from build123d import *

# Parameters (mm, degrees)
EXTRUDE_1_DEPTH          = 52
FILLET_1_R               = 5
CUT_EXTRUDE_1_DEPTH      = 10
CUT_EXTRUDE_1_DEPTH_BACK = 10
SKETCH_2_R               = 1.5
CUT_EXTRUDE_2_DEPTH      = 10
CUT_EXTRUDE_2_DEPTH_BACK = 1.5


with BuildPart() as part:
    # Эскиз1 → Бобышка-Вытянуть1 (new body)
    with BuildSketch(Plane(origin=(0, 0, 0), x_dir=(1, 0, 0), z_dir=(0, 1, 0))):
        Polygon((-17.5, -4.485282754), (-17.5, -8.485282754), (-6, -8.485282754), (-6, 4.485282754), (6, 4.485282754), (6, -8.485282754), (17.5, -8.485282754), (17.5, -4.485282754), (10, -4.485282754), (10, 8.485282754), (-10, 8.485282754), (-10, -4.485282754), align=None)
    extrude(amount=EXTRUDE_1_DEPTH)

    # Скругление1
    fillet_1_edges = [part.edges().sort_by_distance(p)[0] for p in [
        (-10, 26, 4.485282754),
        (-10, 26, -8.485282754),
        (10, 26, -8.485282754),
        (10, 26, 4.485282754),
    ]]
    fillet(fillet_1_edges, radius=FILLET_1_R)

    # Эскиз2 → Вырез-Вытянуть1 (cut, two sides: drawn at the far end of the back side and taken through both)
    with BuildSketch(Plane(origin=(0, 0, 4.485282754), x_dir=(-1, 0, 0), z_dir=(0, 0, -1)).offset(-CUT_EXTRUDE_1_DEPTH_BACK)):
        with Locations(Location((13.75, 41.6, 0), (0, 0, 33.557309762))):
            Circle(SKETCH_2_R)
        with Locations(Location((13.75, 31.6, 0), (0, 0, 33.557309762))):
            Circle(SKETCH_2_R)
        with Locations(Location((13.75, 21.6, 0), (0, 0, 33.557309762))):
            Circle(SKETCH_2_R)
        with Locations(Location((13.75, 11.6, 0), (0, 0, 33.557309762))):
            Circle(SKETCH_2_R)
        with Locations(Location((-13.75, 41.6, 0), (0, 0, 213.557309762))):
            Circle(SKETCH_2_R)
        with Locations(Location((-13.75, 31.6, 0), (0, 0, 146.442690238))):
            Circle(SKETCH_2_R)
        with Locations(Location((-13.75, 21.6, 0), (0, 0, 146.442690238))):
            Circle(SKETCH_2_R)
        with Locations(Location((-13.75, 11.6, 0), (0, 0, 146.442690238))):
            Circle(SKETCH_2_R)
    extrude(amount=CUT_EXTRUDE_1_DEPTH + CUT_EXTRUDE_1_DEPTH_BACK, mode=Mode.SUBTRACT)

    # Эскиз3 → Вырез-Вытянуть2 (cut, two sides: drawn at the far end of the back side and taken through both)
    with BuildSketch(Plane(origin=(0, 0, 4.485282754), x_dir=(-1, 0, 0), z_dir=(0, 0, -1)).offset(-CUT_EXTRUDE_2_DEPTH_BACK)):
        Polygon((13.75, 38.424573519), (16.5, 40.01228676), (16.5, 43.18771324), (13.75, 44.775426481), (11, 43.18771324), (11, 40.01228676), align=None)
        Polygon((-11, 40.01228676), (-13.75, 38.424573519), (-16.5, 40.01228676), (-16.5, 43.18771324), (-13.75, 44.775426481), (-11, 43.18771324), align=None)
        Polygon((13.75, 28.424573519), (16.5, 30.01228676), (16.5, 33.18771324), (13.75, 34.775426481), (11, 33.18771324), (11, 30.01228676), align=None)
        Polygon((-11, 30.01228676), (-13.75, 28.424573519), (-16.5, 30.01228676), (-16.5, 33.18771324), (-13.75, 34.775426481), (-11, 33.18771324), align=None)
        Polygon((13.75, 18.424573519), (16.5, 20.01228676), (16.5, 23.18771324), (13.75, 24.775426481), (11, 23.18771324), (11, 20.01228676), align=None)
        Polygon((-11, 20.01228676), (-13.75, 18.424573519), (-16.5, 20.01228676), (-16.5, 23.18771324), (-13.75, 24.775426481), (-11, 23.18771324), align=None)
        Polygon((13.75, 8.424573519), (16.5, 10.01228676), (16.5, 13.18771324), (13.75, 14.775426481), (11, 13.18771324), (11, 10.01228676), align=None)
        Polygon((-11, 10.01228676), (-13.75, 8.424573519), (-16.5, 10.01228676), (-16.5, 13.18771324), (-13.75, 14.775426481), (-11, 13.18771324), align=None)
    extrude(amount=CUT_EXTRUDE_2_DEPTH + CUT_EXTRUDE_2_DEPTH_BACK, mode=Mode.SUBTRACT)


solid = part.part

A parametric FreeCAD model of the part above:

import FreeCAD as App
import Part
import Sketcher

V = App.Vector
Q = App.Units.Quantity


def edges_at(feature, points):
    """Names of the edges that pass closest to the given points."""
    edges = feature.Shape.Edges
    near = lambda p: min(range(len(edges)), key=lambda i: edges[i].distToShape(Part.Vertex(*p))[0])
    return sorted({f"Edge{near(p) + 1}" for p in points})


def add_polygon(sketch, points):
    """Adds a closed chain of lines whose ends are joined by coincident constraints."""
    first, n = sketch.GeometryCount, len(points)
    for a, b in zip(points, points[1:] + points[:1]):
        sketch.addGeometry(Part.LineSegment(App.Vector(*a, 0), App.Vector(*b, 0)), False)
    for i in range(n):
        sketch.addConstraint(Sketcher.Constraint("Coincident", first + i, 2, first + (i + 1) % n, 1))

doc = App.newDocument("Part")
body = doc.addObject("PartDesign::Body", "Body")

# Sketch on XZ plane
sketch1 = body.newObject("Sketcher::SketchObject", "Sketch")
sketch1.AttachmentSupport = (doc.getObject("XZ_Plane"), [""])
sketch1.MapMode = "FlatFace"
add_polygon(sketch1, [(-17.5, 4.5), (-17.5, 8.5), (-6, 8.5), (-6, -4.5), (6, -4.5), (6, 8.5), (17.5, 8.5), (17.5, 4.5), (10, 4.5), (10, -8.5), (-10, -8.5), (-10, 4.5)])  # lines 0-11
sketch1.addConstraint(Sketcher.Constraint("Vertical", 0))
sketch1.addConstraint(Sketcher.Constraint("Horizontal", 1))
sketch1.addConstraint(Sketcher.Constraint("Vertical", 2))
sketch1.addConstraint(Sketcher.Constraint("Horizontal", 3))
sketch1.addConstraint(Sketcher.Constraint("Vertical", 4))
sketch1.addConstraint(Sketcher.Constraint("Horizontal", 5))
sketch1.addConstraint(Sketcher.Constraint("Vertical", 6))
sketch1.addConstraint(Sketcher.Constraint("Horizontal", 7))
sketch1.addConstraint(Sketcher.Constraint("Vertical", 8))
sketch1.addConstraint(Sketcher.Constraint("Horizontal", 9))
sketch1.addConstraint(Sketcher.Constraint("Vertical", 10))
sketch1.addConstraint(Sketcher.Constraint("Horizontal", 11))
sketch1.addConstraint(Sketcher.Constraint("Symmetric", 1, 2, 4, 2, -2))
sketch1.addConstraint(Sketcher.Constraint("Symmetric", 7, 2, 10, 2, -2))
sketch1.addConstraint(Sketcher.Constraint("Equal", 1, 5))
sketch1.addConstraint(Sketcher.Constraint("Equal", 4, 8))
sketch1.addConstraint(Sketcher.Constraint("DistanceX", 3, 1, 3, 2, 12.0))
sketch1.addConstraint(Sketcher.Constraint("DistanceX", 9, 2, 9, 1, 20.0))
sketch1.addConstraint(Sketcher.Constraint("DistanceY", 0, 1, 0, 2, 4.0))
sketch1.addConstraint(Sketcher.Constraint("DistanceX", 1, 1, 1, 2, 11.5))
sketch1.addConstraint(Sketcher.Constraint("DistanceY", 2, 2, 2, 1, 12.970566))
sketch1.addConstraint(Sketcher.Constraint("DistanceY", -1, 1, 0, 2, 8.485283))
pad1 = body.newObject("PartDesign::Pad", "Pad")
pad1.Profile = sketch1
pad1.Length = 52
pad1.Reversed = True
doc.recompute()

fillet = body.newObject("PartDesign::Fillet", "Fillet")
fillet.Base = (pad1, edges_at(pad1, [
    (-10, 26, 4.485),
    (-10, 26, -8.485),
    (10, 26, -8.485),
    (10, 26, 4.485),
]))
fillet.Radius = 5

# Sketch on XY plane
sketch2 = body.newObject("Sketcher::SketchObject", "Sketch001")
sketch2.AttachmentSupport = (doc.getObject("XY_Plane"), [""])
sketch2.MapMode = "FlatFace"
sketch2.AttachmentOffset = App.Placement(V(0, 0, 4.485283), App.Rotation())
sketch2.addGeometry(Part.Circle(V(-13.8, 41.6, 0), V(0, 0, 1), 1.5), False)
sketch2.addGeometry(Part.Circle(V(-13.8, 31.6, 0), V(0, 0, 1), 1.5), False)
sketch2.addGeometry(Part.Circle(V(-13.8, 21.6, 0), V(0, 0, 1), 1.5), False)
sketch2.addGeometry(Part.Circle(V(-13.8, 11.6, 0), V(0, 0, 1), 1.5), False)
sketch2.addGeometry(Part.Circle(V(13.8, 41.6, 0), V(0, 0, 1), 1.5), False)
sketch2.addGeometry(Part.Circle(V(13.8, 31.6, 0), V(0, 0, 1), 1.5), False)
sketch2.addGeometry(Part.Circle(V(13.8, 21.6, 0), V(0, 0, 1), 1.5), False)
sketch2.addGeometry(Part.Circle(V(13.8, 11.6, 0), V(0, 0, 1), 1.5), False)
sketch2.addConstraint(Sketcher.Constraint("Equal", 0, 1))
sketch2.addConstraint(Sketcher.Constraint("Equal", 1, 2))
sketch2.addConstraint(Sketcher.Constraint("Equal", 2, 3))
sketch2.addConstraint(Sketcher.Constraint("Equal", 3, 4))
sketch2.addConstraint(Sketcher.Constraint("Equal", 4, 5))
sketch2.addConstraint(Sketcher.Constraint("Equal", 5, 6))
sketch2.addConstraint(Sketcher.Constraint("Equal", 6, 7))
sketch2.addConstraint(Sketcher.Constraint("Symmetric", 0, 3, 4, 3, -2))
sketch2.addConstraint(Sketcher.Constraint("Symmetric", 1, 3, 5, 3, -2))
sketch2.addConstraint(Sketcher.Constraint("Symmetric", 2, 3, 6, 3, -2))
sketch2.addConstraint(Sketcher.Constraint("Symmetric", 3, 3, 7, 3, -2))
sketch2.addConstraint(Sketcher.Constraint("Vertical", 0, 3, 1, 3))
sketch2.addConstraint(Sketcher.Constraint("Vertical", 1, 3, 2, 3))
sketch2.addConstraint(Sketcher.Constraint("Vertical", 2, 3, 3, 3))
sketch2.addConstraint(Sketcher.Constraint("Diameter", 0, 3.0))
sketch2.addConstraint(Sketcher.Constraint("DistanceY", 1, 3, 0, 3, 10.0))
sketch2.addConstraint(Sketcher.Constraint("DistanceY", 2, 3, 1, 3, 10.0))
sketch2.addConstraint(Sketcher.Constraint("DistanceY", 3, 3, 2, 3, 10.0))
sketch2.addConstraint(Sketcher.Constraint("DistanceY", -1, 1, 0, 3, 41.6))
sketch2.addConstraint(Sketcher.Constraint("DistanceX", 0, 3, 4, 3, 27.5))
pocket1 = body.newObject("PartDesign::Pocket", "Pocket")
pocket1.Profile = sketch2
pocket1.Type = "ThroughAll"
pocket1.Midplane = True

# Sketch on XY plane
sketch3 = body.newObject("Sketcher::SketchObject", "Sketch002")
sketch3.AttachmentSupport = (doc.getObject("XY_Plane"), [""])
sketch3.MapMode = "FlatFace"
sketch3.AttachmentOffset = App.Placement(V(0, 0, 4.485283), App.Rotation())
add_polygon(sketch3, [(-13.8, 38.4), (-16.5, 40), (-16.5, 43.2), (-13.8, 44.8), (-11, 43.2), (-11, 40)])  # lines 0-5
add_polygon(sketch3, [(13.8, 38.4), (11, 40), (11, 43.2), (13.8, 44.8), (16.5, 43.2), (16.5, 40)])  # lines 6-11
add_polygon(sketch3, [(-13.8, 28.4), (-16.5, 30), (-16.5, 33.2), (-13.8, 34.8), (-11, 33.2), (-11, 30)])  # lines 12-17
add_polygon(sketch3, [(13.8, 28.4), (11, 30), (11, 33.2), (13.8, 34.8), (16.5, 33.2), (16.5, 30)])  # lines 18-23
add_polygon(sketch3, [(-13.8, 18.4), (-16.5, 20), (-16.5, 23.2), (-13.8, 24.8), (-11, 23.2), (-11, 20)])  # lines 24-29
add_polygon(sketch3, [(13.8, 18.4), (11, 20), (11, 23.2), (13.8, 24.8), (16.5, 23.2), (16.5, 20)])  # lines 30-35
add_polygon(sketch3, [(-13.8, 8.4), (-16.5, 10), (-16.5, 13.2), (-13.8, 14.8), (-11, 13.2), (-11, 10)])  # lines 36-41
add_polygon(sketch3, [(13.8, 8.4), (11, 10), (11, 13.2), (13.8, 14.8), (16.5, 13.2), (16.5, 10)])  # lines 42-47
sketch3.addConstraint(Sketcher.Constraint("Vertical", 1))
sketch3.addConstraint(Sketcher.Constraint("Vertical", 4))
sketch3.addConstraint(Sketcher.Constraint("Vertical", 7))
sketch3.addConstraint(Sketcher.Constraint("Vertical", 10))
sketch3.addConstraint(Sketcher.Constraint("Vertical", 13))
sketch3.addConstraint(Sketcher.Constraint("Vertical", 16))
sketch3.addConstraint(Sketcher.Constraint("Vertical", 19))
sketch3.addConstraint(Sketcher.Constraint("Vertical", 22))
sketch3.addConstraint(Sketcher.Constraint("Vertical", 25))
sketch3.addConstraint(Sketcher.Constraint("Vertical", 28))
sketch3.addConstraint(Sketcher.Constraint("Vertical", 31))
sketch3.addConstraint(Sketcher.Constraint("Vertical", 34))
sketch3.addConstraint(Sketcher.Constraint("Vertical", 37))
sketch3.addConstraint(Sketcher.Constraint("Vertical", 40))
sketch3.addConstraint(Sketcher.Constraint("Vertical", 43))
sketch3.addConstraint(Sketcher.Constraint("Vertical", 46))
sketch3.addConstraint(Sketcher.Constraint("Symmetric", 4, 2, 6, 2, -2))
sketch3.addConstraint(Sketcher.Constraint("Symmetric", 2, 2, 8, 2, -2))
sketch3.addConstraint(Sketcher.Constraint("Symmetric", 1, 2, 9, 2, -2))
sketch3.addConstraint(Sketcher.Constraint("Symmetric", 5, 2, 11, 2, -2))
sketch3.addConstraint(Sketcher.Constraint("Symmetric", 16, 2, 18, 2, -2))
sketch3.addConstraint(Sketcher.Constraint("Symmetric", 14, 2, 20, 2, -2))
sketch3.addConstraint(Sketcher.Constraint("Symmetric", 13, 2, 21, 2, -2))
sketch3.addConstraint(Sketcher.Constraint("Symmetric", 17, 2, 23, 2, -2))
sketch3.addConstraint(Sketcher.Constraint("Symmetric", 28, 2, 30, 2, -2))
sketch3.addConstraint(Sketcher.Constraint("Symmetric", 26, 2, 32, 2, -2))
sketch3.addConstraint(Sketcher.Constraint("Symmetric", 25, 2, 33, 2, -2))
sketch3.addConstraint(Sketcher.Constraint("Symmetric", 29, 2, 35, 2, -2))
sketch3.addConstraint(Sketcher.Constraint("Symmetric", 40, 2, 42, 2, -2))
sketch3.addConstraint(Sketcher.Constraint("Symmetric", 38, 2, 44, 2, -2))
sketch3.addConstraint(Sketcher.Constraint("Symmetric", 37, 2, 45, 2, -2))
sketch3.addConstraint(Sketcher.Constraint("Symmetric", 41, 2, 47, 2, -2))
sketch3.addConstraint(Sketcher.Constraint("Parallel", 0, 3))
sketch3.addConstraint(Sketcher.Constraint("Parallel", 2, 5))
sketch3.addConstraint(Sketcher.Constraint("Parallel", 3, 6))
sketch3.addConstraint(Sketcher.Constraint("Parallel", 5, 8))
sketch3.addConstraint(Sketcher.Constraint("Parallel", 8, 11))
sketch3.addConstraint(Sketcher.Constraint("Parallel", 9, 12))
sketch3.addConstraint(Sketcher.Constraint("Parallel", 11, 14))
sketch3.addConstraint(Sketcher.Constraint("Parallel", 12, 15))
sketch3.addConstraint(Sketcher.Constraint("Parallel", 14, 17))
sketch3.addConstraint(Sketcher.Constraint("Parallel", 17, 20))
sketch3.addConstraint(Sketcher.Constraint("Parallel", 20, 23))
sketch3.addConstraint(Sketcher.Constraint("Parallel", 21, 24))
sketch3.addConstraint(Sketcher.Constraint("Parallel", 23, 26))
sketch3.addConstraint(Sketcher.Constraint("Parallel", 24, 27))
sketch3.addConstraint(Sketcher.Constraint("Parallel", 26, 29))
sketch3.addConstraint(Sketcher.Constraint("Parallel", 29, 32))
sketch3.addConstraint(Sketcher.Constraint("Parallel", 32, 35))
sketch3.addConstraint(Sketcher.Constraint("Parallel", 33, 36))
sketch3.addConstraint(Sketcher.Constraint("Parallel", 35, 38))
sketch3.addConstraint(Sketcher.Constraint("Parallel", 36, 39))
sketch3.addConstraint(Sketcher.Constraint("Parallel", 38, 41))
sketch3.addConstraint(Sketcher.Constraint("Parallel", 41, 44))
sketch3.addConstraint(Sketcher.Constraint("Parallel", 44, 47))
sketch3.addConstraint(Sketcher.Constraint("Horizontal", 1, 2, 3, 2))
sketch3.addConstraint(Sketcher.Constraint("Horizontal", 0, 2, 4, 2))
sketch3.addConstraint(Sketcher.Constraint("Horizontal", 13, 2, 15, 2))
sketch3.addConstraint(Sketcher.Constraint("Horizontal", 12, 2, 16, 2))
sketch3.addConstraint(Sketcher.Constraint("Horizontal", 25, 2, 27, 2))
sketch3.addConstraint(Sketcher.Constraint("Horizontal", 24, 2, 28, 2))
sketch3.addConstraint(Sketcher.Constraint("Horizontal", 37, 2, 39, 2))
sketch3.addConstraint(Sketcher.Constraint("Horizontal", 36, 2, 40, 2))
sketch3.addConstraint(Sketcher.Constraint("Vertical", 1, 2, 12, 2))
sketch3.addConstraint(Sketcher.Constraint("Vertical", 5, 2, 14, 2))
sketch3.addConstraint(Sketcher.Constraint("Vertical", 13, 2, 24, 2))
sketch3.addConstraint(Sketcher.Constraint("Vertical", 17, 2, 26, 2))
sketch3.addConstraint(Sketcher.Constraint("Vertical", 25, 2, 36, 2))
sketch3.addConstraint(Sketcher.Constraint("Vertical", 29, 2, 38, 2))
sketch3.addConstraint(Sketcher.Constraint("Equal", 10, 13))
sketch3.addConstraint(Sketcher.Constraint("Equal", 22, 25))
sketch3.addConstraint(Sketcher.Constraint("Equal", 34, 37))
sketch3.addConstraint(Sketcher.Constraint("Angle", 0, Q("150 deg")))
sketch3.addConstraint(Sketcher.Constraint("DistanceX", 3, 2, -1, 1, 11.0))
sketch3.addConstraint(Sketcher.Constraint("DistanceY", 12, 2, 0, 2, 10.0))
sketch3.addConstraint(Sketcher.Constraint("DistanceY", 24, 2, 12, 2, 10.0))
sketch3.addConstraint(Sketcher.Constraint("DistanceY", 36, 2, 24, 2, 10.0))
sketch3.addConstraint(Sketcher.Constraint("DistanceX", 0, 2, -1, 1, 16.5))
sketch3.addConstraint(Sketcher.Constraint("DistanceY", 1, 1, 1, 2, 3.175426))
sketch3.addConstraint(Sketcher.Constraint("DistanceY", -1, 1, 0, 2, 40.012287))
pocket2 = body.newObject("PartDesign::Pocket", "Pocket001")
pocket2.Profile = sketch3
pocket2.Type = "TwoLengths"
pocket2.Length = 10
pocket2.Length2 = 1.5

doc.recompute()
